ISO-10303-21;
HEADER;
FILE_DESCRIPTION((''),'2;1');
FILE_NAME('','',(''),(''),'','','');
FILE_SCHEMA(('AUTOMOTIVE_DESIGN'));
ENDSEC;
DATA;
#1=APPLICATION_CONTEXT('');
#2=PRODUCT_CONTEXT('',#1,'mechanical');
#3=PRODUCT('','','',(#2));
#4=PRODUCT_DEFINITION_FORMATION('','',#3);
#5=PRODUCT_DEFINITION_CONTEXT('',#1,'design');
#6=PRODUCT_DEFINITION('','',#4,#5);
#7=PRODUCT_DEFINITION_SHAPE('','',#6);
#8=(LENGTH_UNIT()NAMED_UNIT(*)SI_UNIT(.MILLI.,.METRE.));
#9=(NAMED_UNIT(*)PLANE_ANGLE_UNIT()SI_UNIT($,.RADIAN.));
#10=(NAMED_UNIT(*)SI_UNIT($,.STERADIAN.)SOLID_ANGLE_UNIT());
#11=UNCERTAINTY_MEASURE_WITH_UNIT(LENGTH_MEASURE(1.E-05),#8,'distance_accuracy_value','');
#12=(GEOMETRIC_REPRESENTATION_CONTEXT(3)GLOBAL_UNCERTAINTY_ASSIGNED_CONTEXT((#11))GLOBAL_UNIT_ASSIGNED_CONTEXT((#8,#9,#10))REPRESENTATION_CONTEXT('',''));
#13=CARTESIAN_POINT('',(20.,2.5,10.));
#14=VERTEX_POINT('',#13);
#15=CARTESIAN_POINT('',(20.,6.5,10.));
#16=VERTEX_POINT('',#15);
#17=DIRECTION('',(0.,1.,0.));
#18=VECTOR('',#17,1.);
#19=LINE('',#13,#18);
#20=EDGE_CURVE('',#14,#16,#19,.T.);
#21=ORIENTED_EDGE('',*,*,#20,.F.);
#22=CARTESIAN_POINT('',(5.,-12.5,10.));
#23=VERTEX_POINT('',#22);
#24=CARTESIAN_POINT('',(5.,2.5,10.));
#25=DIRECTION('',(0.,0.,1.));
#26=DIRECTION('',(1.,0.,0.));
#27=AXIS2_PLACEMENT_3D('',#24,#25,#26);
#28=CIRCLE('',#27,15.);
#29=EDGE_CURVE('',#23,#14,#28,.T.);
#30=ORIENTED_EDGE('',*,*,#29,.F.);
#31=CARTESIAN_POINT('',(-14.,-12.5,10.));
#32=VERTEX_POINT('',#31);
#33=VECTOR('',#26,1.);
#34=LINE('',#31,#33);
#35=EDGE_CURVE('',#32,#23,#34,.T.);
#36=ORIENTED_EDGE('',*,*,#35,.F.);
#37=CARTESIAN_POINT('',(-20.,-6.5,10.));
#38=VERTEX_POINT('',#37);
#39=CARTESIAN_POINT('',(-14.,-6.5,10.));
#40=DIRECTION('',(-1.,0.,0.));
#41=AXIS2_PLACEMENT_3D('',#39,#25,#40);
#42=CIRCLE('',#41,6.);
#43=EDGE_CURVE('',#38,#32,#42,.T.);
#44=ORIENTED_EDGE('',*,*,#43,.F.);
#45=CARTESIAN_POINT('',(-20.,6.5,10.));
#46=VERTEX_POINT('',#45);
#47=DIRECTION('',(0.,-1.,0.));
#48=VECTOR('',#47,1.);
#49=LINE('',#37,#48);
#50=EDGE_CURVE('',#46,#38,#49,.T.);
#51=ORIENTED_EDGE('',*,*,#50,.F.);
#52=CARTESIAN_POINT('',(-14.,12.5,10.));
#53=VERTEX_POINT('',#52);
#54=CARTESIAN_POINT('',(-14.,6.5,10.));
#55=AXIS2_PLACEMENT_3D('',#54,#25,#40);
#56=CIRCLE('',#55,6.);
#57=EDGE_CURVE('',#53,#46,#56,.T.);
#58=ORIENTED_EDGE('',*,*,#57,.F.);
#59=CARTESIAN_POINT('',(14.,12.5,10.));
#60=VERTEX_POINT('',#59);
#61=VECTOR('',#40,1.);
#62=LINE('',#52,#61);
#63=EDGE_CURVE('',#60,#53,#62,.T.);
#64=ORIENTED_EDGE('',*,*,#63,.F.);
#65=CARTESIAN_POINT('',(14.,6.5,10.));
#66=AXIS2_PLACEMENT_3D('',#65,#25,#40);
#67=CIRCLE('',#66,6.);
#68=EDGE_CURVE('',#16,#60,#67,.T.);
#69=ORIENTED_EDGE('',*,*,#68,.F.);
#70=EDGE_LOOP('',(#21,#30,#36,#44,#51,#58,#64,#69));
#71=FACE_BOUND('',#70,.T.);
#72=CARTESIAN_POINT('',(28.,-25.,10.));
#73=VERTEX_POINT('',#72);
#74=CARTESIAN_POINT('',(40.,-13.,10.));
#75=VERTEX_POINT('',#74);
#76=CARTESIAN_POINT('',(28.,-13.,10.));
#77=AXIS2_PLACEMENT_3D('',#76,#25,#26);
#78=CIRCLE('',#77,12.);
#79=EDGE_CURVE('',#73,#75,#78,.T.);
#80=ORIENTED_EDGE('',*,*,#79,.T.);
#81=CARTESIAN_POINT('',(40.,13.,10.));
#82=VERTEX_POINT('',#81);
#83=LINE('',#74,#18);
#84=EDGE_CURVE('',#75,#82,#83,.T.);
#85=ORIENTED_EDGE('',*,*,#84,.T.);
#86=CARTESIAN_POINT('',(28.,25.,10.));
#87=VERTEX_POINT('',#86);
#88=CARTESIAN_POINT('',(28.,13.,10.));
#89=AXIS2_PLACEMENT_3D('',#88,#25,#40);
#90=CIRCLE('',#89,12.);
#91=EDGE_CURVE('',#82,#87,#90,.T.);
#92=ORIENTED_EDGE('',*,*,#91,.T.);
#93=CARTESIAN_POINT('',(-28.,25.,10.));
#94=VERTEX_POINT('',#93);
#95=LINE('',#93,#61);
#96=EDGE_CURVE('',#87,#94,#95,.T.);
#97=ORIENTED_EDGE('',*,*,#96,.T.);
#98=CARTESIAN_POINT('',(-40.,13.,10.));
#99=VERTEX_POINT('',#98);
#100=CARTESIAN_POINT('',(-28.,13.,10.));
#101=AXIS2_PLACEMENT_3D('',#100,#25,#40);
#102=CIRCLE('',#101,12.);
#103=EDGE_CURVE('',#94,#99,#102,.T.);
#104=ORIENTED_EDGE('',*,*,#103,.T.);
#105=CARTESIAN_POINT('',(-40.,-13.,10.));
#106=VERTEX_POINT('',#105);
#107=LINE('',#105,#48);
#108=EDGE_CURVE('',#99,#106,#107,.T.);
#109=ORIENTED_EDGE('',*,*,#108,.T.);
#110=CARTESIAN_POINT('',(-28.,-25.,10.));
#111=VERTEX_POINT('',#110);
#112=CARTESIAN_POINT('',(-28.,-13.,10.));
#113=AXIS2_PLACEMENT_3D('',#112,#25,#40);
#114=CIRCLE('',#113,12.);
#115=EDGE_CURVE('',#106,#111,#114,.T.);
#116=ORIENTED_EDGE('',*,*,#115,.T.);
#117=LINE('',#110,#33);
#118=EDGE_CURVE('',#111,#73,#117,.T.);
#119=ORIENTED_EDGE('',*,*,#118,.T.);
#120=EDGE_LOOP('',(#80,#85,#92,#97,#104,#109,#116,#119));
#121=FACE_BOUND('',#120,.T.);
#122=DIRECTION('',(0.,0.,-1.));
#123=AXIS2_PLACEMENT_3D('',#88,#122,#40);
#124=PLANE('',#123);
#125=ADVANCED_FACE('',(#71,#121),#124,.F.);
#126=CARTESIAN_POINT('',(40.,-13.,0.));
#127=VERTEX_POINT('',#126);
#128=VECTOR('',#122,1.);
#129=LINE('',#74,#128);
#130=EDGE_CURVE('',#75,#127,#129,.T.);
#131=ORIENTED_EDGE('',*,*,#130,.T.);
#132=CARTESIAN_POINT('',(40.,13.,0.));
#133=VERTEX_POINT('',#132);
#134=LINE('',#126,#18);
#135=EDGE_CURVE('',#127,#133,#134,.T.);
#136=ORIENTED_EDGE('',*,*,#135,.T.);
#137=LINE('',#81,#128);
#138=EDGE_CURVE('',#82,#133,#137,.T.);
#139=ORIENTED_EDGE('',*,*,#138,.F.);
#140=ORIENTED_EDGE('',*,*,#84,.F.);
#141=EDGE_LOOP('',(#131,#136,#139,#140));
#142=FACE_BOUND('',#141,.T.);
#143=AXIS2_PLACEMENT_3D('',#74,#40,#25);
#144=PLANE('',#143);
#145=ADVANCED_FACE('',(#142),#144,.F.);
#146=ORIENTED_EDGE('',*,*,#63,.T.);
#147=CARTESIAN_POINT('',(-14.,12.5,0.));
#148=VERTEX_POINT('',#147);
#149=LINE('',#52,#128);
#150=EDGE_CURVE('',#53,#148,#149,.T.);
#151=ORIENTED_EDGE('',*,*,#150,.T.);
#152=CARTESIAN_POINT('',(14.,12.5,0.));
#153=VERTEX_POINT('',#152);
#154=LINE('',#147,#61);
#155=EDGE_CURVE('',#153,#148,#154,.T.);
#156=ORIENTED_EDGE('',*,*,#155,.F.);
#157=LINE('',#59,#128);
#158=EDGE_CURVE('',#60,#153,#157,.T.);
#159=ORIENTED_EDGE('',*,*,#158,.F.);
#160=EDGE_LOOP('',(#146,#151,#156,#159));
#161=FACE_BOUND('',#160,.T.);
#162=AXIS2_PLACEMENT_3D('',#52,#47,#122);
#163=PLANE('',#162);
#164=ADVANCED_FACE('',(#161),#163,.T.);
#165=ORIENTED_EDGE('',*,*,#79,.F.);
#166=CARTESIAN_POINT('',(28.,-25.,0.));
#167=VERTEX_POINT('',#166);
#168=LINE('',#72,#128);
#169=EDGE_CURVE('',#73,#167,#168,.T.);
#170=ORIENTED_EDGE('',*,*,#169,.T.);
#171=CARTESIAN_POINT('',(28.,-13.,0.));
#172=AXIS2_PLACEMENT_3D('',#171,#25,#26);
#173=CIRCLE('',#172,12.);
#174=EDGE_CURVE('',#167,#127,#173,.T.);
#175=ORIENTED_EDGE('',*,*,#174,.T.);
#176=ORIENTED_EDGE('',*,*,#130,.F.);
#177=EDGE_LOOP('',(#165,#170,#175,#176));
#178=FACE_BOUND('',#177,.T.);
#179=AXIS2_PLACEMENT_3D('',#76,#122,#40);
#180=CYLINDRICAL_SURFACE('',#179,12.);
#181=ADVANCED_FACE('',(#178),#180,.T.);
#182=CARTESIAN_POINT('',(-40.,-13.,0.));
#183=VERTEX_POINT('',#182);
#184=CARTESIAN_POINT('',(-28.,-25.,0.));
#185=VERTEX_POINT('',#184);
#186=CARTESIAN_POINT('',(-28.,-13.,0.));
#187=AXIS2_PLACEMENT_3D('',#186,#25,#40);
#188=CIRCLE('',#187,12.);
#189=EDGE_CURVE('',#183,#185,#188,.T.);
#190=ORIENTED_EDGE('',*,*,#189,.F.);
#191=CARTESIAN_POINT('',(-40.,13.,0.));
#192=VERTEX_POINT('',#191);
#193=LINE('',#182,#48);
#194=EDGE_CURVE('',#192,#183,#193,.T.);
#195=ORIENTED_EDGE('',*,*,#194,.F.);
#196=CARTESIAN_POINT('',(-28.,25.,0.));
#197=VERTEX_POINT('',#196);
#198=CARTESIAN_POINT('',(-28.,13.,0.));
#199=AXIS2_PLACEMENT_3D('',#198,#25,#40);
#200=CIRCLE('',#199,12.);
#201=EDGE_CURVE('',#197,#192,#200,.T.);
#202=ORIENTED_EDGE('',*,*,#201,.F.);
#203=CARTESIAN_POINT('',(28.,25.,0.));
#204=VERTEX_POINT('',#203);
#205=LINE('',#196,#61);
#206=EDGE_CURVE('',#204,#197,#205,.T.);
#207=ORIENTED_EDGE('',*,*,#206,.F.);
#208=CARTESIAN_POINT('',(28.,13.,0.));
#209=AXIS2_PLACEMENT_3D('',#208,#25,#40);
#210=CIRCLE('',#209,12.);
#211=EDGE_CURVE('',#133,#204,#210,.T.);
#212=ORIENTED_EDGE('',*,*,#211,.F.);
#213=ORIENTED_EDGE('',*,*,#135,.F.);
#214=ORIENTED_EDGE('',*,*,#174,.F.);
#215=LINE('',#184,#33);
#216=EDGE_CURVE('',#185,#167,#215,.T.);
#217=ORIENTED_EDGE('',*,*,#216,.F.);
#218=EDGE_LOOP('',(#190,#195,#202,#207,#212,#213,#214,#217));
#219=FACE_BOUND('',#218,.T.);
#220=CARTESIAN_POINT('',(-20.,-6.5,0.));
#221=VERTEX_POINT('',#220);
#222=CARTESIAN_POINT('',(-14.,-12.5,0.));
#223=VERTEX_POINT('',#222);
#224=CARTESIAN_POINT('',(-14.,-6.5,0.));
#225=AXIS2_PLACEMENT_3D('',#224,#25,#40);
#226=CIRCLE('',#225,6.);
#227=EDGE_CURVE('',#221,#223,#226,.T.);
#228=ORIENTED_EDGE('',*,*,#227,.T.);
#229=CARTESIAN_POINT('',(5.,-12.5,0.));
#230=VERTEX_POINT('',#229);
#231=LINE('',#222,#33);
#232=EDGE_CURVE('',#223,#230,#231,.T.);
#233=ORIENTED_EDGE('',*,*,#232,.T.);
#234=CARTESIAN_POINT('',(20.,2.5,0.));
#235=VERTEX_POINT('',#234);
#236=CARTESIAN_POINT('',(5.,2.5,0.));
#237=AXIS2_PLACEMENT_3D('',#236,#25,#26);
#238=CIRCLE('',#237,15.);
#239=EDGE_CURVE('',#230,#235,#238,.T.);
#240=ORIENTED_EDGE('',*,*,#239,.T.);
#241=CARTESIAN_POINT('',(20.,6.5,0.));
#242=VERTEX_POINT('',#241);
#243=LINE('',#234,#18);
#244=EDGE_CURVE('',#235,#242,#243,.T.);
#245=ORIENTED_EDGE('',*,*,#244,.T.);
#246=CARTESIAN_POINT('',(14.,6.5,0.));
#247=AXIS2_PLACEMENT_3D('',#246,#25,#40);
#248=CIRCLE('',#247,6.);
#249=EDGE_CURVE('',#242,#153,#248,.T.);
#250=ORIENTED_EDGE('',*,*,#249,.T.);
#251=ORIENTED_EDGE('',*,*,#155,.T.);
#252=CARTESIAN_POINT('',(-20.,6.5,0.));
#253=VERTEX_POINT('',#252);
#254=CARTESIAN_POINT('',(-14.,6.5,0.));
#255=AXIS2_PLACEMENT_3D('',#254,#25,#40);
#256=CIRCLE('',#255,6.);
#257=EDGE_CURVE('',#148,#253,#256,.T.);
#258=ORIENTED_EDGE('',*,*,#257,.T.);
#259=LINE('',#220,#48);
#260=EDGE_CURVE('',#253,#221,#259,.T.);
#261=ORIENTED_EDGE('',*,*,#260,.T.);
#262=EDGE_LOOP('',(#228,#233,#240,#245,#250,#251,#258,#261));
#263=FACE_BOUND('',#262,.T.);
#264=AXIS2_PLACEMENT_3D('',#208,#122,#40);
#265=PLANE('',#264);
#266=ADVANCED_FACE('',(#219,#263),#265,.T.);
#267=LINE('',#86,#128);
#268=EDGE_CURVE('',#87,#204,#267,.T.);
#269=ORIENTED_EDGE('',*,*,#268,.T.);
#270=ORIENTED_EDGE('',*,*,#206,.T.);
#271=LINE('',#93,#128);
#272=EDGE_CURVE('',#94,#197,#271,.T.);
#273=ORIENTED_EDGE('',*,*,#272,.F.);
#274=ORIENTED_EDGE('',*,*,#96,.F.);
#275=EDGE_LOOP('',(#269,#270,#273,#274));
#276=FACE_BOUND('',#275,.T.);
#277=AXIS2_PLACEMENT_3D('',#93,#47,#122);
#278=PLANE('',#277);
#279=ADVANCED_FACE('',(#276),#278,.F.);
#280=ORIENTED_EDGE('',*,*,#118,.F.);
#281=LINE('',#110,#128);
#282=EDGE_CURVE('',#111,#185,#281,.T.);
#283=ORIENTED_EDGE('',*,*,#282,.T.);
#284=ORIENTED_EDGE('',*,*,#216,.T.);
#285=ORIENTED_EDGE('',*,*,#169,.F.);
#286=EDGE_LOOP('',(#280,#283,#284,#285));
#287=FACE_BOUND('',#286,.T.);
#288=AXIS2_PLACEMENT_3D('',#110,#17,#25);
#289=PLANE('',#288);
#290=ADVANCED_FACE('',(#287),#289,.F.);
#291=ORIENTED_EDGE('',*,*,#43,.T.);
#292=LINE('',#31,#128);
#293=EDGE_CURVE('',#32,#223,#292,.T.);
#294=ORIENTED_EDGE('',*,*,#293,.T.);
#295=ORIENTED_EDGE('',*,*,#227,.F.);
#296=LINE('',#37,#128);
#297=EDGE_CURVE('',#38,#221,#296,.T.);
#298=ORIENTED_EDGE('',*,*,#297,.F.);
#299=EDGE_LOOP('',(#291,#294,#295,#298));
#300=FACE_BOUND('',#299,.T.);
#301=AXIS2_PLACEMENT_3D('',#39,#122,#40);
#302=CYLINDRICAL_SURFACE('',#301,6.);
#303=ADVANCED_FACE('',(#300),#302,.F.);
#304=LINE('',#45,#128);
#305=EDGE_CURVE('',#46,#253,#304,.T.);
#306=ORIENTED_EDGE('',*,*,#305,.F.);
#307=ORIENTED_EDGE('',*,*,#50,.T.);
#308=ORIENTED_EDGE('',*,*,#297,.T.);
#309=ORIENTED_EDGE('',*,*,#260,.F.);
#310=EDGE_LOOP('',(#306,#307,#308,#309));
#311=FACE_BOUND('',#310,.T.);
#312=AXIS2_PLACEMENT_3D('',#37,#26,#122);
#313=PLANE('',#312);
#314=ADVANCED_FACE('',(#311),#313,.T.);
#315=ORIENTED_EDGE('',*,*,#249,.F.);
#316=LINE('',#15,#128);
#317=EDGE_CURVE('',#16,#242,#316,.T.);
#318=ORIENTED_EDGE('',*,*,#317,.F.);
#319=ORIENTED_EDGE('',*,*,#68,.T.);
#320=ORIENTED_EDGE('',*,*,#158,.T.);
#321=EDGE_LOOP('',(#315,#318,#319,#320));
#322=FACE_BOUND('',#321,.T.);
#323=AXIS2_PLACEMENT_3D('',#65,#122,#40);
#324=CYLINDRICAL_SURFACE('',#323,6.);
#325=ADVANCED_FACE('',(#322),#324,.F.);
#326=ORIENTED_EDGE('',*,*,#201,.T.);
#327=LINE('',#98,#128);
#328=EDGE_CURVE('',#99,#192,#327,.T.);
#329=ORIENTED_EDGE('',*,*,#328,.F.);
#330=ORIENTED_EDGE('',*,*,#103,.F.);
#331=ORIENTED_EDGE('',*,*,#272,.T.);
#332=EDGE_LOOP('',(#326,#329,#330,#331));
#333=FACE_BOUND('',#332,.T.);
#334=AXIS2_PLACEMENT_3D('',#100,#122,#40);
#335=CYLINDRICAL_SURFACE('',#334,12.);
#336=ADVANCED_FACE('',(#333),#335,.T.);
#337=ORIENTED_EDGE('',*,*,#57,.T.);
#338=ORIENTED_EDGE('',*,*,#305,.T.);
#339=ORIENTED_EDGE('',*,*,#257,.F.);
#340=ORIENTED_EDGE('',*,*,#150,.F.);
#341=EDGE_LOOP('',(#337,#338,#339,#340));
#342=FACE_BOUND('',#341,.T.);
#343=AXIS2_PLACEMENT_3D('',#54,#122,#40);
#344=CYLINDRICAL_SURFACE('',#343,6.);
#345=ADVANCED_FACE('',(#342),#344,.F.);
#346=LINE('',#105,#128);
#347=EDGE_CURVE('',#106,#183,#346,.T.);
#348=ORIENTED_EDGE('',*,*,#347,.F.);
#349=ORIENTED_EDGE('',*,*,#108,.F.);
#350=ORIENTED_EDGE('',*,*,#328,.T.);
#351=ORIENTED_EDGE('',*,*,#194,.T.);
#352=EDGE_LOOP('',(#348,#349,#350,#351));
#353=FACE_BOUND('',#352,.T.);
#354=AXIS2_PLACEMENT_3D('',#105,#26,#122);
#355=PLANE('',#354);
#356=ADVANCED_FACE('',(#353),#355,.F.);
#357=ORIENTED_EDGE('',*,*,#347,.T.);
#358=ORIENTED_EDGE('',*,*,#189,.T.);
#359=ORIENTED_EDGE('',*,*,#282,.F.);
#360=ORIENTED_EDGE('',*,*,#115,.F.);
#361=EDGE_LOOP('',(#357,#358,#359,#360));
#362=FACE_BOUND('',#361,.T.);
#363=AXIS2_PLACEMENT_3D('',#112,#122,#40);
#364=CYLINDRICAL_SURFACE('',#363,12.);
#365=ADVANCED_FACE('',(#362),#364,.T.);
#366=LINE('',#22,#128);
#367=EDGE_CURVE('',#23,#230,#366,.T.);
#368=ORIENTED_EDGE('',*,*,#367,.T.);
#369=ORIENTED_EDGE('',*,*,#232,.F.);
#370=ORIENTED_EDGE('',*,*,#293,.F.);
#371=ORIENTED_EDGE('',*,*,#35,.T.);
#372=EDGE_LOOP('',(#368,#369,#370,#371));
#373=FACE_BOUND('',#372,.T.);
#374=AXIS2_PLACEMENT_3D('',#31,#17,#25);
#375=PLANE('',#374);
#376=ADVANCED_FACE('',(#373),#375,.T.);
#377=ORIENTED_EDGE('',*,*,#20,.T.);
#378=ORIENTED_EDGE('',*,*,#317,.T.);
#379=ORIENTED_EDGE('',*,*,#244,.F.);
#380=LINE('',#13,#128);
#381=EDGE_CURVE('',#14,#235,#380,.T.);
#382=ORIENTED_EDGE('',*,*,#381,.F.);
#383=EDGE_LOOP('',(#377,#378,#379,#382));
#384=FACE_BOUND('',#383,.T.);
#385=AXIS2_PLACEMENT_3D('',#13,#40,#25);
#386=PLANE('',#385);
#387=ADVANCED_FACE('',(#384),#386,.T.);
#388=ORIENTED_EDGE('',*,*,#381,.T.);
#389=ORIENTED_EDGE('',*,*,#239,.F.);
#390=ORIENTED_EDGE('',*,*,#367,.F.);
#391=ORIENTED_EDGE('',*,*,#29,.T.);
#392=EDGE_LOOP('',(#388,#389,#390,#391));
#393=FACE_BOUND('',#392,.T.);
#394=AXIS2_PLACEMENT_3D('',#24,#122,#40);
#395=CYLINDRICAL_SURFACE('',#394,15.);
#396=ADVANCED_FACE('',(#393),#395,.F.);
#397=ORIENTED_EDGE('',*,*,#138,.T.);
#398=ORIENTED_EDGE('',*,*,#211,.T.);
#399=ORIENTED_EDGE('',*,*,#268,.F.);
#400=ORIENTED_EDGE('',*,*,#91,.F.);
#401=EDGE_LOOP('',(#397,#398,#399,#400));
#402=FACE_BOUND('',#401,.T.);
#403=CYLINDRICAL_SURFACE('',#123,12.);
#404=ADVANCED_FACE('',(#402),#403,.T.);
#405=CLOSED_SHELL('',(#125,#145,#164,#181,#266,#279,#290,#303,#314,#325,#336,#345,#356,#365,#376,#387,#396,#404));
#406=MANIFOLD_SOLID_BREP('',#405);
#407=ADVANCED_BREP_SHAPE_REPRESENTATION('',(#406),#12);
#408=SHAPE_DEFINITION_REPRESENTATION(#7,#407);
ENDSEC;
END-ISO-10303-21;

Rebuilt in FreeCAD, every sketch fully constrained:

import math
import FreeCAD as App
import Part
import Sketcher
from FreeCAD import Vector
Q = App.Units.Quantity

doc = App.newDocument("Part")
body = doc.addObject("PartDesign::Body", "Body")

# Sketch on XY plane
sketch1 = body.newObject("Sketcher::SketchObject", "Sketch")
sketch1.AttachmentSupport = (doc.getObject("XY_Plane"), [""])
sketch1.MapMode = "FlatFace"
sketch1.addGeometry(Part.LineSegment(Vector(-28, -25, 0), Vector(28, -25, 0)), False)
sketch1.addGeometry(Part.ArcOfCircle(Part.Circle(Vector(28, -13, 0), Vector(0, 0, 1), 12), math.radians(-90), math.radians(0)), False)
sketch1.addGeometry(Part.LineSegment(Vector(40, -13, 0), Vector(40, 13, 0)), False)
sketch1.addGeometry(Part.ArcOfCircle(Part.Circle(Vector(28, 13, 0), Vector(0, 0, 1), 12), math.radians(0), math.radians(90)), False)
sketch1.addGeometry(Part.LineSegment(Vector(28, 25, 0), Vector(-28, 25, 0)), False)
sketch1.addGeometry(Part.ArcOfCircle(Part.Circle(Vector(-28, 13, 0), Vector(0, 0, 1), 12), math.radians(90), math.radians(180)), False)
sketch1.addGeometry(Part.LineSegment(Vector(-40, 13, 0), Vector(-40, -13, 0)), False)
sketch1.addGeometry(Part.ArcOfCircle(Part.Circle(Vector(-28, -13, 0), Vector(0, 0, 1), 12), math.radians(-180), math.radians(-90)), False)
sketch1.addGeometry(Part.LineSegment(Vector(5, -12.5, 0), Vector(-14, -12.5, 0)), False)
sketch1.addGeometry(Part.ArcOfCircle(Part.Circle(Vector(-14, -6.5, 0), Vector(0, 0, 1), 6), math.radians(180), math.radians(270)), False)
sketch1.addGeometry(Part.LineSegment(Vector(-20, -6.5, 0), Vector(-20, 6.5, 0)), False)
sketch1.addGeometry(Part.ArcOfCircle(Part.Circle(Vector(-14, 6.5, 0), Vector(0, 0, 1), 6), math.radians(90), math.radians(180)), False)
sketch1.addGeometry(Part.LineSegment(Vector(-14, 12.5, 0), Vector(14, 12.5, 0)), False)
sketch1.addGeometry(Part.ArcOfCircle(Part.Circle(Vector(14, 6.5, 0), Vector(0, 0, 1), 6), math.radians(0), math.radians(90)), False)
sketch1.addGeometry(Part.LineSegment(Vector(20, 6.5, 0), Vector(20, 2.5, 0)), False)
sketch1.addGeometry(Part.ArcOfCircle(Part.Circle(Vector(5, 2.5, 0), Vector(0, 0, 1), 15), math.radians(-90), math.radians(0)), False)
sketch1.addConstraint(Sketcher.Constraint("Tangent", 0, 2, 1, 1))
sketch1.addConstraint(Sketcher.Constraint("Tangent", 1, 2, 2, 1))
sketch1.addConstraint(Sketcher.Constraint("Tangent", 2, 2, 3, 1))
sketch1.addConstraint(Sketcher.Constraint("Tangent", 3, 2, 4, 1))
sketch1.addConstraint(Sketcher.Constraint("Tangent", 4, 2, 5, 1))
sketch1.addConstraint(Sketcher.Constraint("Tangent", 5, 2, 6, 1))
sketch1.addConstraint(Sketcher.Constraint("Tangent", 6, 2, 7, 1))
sketch1.addConstraint(Sketcher.Constraint("Tangent", 7, 2, 0, 1))
sketch1.addConstraint(Sketcher.Constraint("Tangent", 8, 2, 9, 2))
sketch1.addConstraint(Sketcher.Constraint("Tangent", 9, 1, 10, 1))
sketch1.addConstraint(Sketcher.Constraint("Tangent", 10, 2, 11, 2))
sketch1.addConstraint(Sketcher.Constraint("Tangent", 11, 1, 12, 1))
sketch1.addConstraint(Sketcher.Constraint("Tangent", 12, 2, 13, 2))
sketch1.addConstraint(Sketcher.Constraint("Tangent", 13, 1, 14, 1))
sketch1.addConstraint(Sketcher.Constraint("Tangent", 14, 2, 15, 2))
sketch1.addConstraint(Sketcher.Constraint("Tangent", 15, 1, 8, 1))
sketch1.addConstraint(Sketcher.Constraint("Horizontal", 0))
sketch1.addConstraint(Sketcher.Constraint("Vertical", 2))
sketch1.addConstraint(Sketcher.Constraint("Horizontal", 4))
sketch1.addConstraint(Sketcher.Constraint("Vertical", 6))
sketch1.addConstraint(Sketcher.Constraint("Horizontal", 8))
sketch1.addConstraint(Sketcher.Constraint("Vertical", 10))
sketch1.addConstraint(Sketcher.Constraint("Horizontal", 12))
sketch1.addConstraint(Sketcher.Constraint("Vertical", 14))
sketch1.addConstraint(Sketcher.Constraint("Equal", 1, 3))
sketch1.addConstraint(Sketcher.Constraint("Equal", 3, 5))
sketch1.addConstraint(Sketcher.Constraint("Equal", 5, 7))
sketch1.addConstraint(Sketcher.Constraint("Equal", 9, 11))
sketch1.addConstraint(Sketcher.Constraint("Equal", 11, 13))
sketch1.addConstraint(Sketcher.Constraint("Symmetric", 1, 3, 5, 3, -1, 1))
sketch1.addConstraint(Sketcher.Constraint("Symmetric", 9, 3, 13, 3, -1, 1))
sketch1.addConstraint(Sketcher.Constraint("Radius", 1, Q("12 mm")))
sketch1.addConstraint(Sketcher.Constraint("Radius", 9, Q("6 mm")))
sketch1.addConstraint(Sketcher.Constraint("Radius", 15, Q("15 mm")))
sketch1.addConstraint(Sketcher.Constraint("DistanceX", 0, 1, 0, 2, Q("56 mm")))
sketch1.addConstraint(Sketcher.Constraint("DistanceX", 8, 2, 8, 1, Q("19 mm")))
sketch1.addConstraint(Sketcher.Constraint("DistanceY", 2, 1, 2, 2, Q("26 mm")))
sketch1.addConstraint(Sketcher.Constraint("DistanceY", 10, 1, 10, 2, Q("13 mm")))
pad1 = body.newObject("PartDesign::Pad", "Pad")
pad1.Profile = sketch1
pad1.Length = 10

doc.recompute()
